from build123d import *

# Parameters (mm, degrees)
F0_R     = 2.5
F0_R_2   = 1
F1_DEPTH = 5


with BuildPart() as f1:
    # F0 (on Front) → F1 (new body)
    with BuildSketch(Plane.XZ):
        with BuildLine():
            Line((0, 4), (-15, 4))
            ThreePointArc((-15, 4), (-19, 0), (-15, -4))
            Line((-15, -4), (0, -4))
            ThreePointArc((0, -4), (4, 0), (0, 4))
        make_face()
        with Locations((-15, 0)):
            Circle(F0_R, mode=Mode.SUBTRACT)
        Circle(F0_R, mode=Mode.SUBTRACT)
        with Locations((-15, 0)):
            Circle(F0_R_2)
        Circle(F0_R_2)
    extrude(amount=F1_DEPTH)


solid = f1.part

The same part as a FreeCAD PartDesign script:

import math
import FreeCAD as App
import Part
import Sketcher
from FreeCAD import Vector
Q = App.Units.Quantity

doc = App.newDocument("Part")
body = doc.addObject("PartDesign::Body", "Body")
body.AllowCompound = True

sketch1 = body.newObject("Sketcher::SketchObject", "Sketch")
sketch1.AttachmentSupport = (doc.getObject("XZ_Plane"), [""])
sketch1.MapMode = "FlatFace"
sketch1.addGeometry([
    Part.LineSegment(Vector(0, 4, 0), Vector(-15, 4, 0)),
    Part.ArcOfCircle(Part.Circle(Vector(-15, 0, 0), Vector(0, 0, 1), 4), math.radians(90), math.radians(270)),
    Part.LineSegment(Vector(-15, -4, 0), Vector(0, -4, 0)),
    Part.ArcOfCircle(Part.Circle(Vector(0, 0, 0), Vector(0, 0, 1), 4), math.radians(-90), math.radians(90)),
    Part.Circle(Vector(-15, 0, 0), Vector(0, 0, 1), 2.5),
    Part.Circle(Vector(0, 0, 0), Vector(0, 0, 1), 2.5),
    Part.Circle(Vector(-15, 0, 0), Vector(0, 0, 1), 1),
    Part.Circle(Vector(0, 0, 0), Vector(0, 0, 1), 1),
], False)
sketch1.addConstraint([
    Sketcher.Constraint("Tangent", 0, 2, 1, 1),
    Sketcher.Constraint("Tangent", 1, 2, 2, 1),
    Sketcher.Constraint("Tangent", 2, 2, 3, 1),
    Sketcher.Constraint("Tangent", 3, 2, 0, 1),
    Sketcher.Constraint("Horizontal", 0),
    Sketcher.Constraint("Horizontal", 2),
    Sketcher.Constraint("Coincident", 3, 3, -1, 1),
    Sketcher.Constraint("Coincident", 5, 3, -1, 1),
    Sketcher.Constraint("Coincident", 7, 3, -1, 1),
    Sketcher.Constraint("Coincident", 4, 3, 1, 3),
    Sketcher.Constraint("Coincident", 6, 3, 1, 3),
    Sketcher.Constraint("Equal", 4, 5),
    Sketcher.Constraint("Equal", 6, 7),
    Sketcher.Constraint("Diameter", 4, Q("5 mm")),
    Sketcher.Constraint("Diameter", 6, Q("2 mm")),
    Sketcher.Constraint("Radius", 1, Q("4 mm")),
    Sketcher.Constraint("DistanceX", 0, 2, 0, 1, Q("15 mm")),
])
pad1 = body.newObject("PartDesign::Pad", "Pad")
pad1.Profile = sketch1
pad1.Length = 5

doc.recompute()
